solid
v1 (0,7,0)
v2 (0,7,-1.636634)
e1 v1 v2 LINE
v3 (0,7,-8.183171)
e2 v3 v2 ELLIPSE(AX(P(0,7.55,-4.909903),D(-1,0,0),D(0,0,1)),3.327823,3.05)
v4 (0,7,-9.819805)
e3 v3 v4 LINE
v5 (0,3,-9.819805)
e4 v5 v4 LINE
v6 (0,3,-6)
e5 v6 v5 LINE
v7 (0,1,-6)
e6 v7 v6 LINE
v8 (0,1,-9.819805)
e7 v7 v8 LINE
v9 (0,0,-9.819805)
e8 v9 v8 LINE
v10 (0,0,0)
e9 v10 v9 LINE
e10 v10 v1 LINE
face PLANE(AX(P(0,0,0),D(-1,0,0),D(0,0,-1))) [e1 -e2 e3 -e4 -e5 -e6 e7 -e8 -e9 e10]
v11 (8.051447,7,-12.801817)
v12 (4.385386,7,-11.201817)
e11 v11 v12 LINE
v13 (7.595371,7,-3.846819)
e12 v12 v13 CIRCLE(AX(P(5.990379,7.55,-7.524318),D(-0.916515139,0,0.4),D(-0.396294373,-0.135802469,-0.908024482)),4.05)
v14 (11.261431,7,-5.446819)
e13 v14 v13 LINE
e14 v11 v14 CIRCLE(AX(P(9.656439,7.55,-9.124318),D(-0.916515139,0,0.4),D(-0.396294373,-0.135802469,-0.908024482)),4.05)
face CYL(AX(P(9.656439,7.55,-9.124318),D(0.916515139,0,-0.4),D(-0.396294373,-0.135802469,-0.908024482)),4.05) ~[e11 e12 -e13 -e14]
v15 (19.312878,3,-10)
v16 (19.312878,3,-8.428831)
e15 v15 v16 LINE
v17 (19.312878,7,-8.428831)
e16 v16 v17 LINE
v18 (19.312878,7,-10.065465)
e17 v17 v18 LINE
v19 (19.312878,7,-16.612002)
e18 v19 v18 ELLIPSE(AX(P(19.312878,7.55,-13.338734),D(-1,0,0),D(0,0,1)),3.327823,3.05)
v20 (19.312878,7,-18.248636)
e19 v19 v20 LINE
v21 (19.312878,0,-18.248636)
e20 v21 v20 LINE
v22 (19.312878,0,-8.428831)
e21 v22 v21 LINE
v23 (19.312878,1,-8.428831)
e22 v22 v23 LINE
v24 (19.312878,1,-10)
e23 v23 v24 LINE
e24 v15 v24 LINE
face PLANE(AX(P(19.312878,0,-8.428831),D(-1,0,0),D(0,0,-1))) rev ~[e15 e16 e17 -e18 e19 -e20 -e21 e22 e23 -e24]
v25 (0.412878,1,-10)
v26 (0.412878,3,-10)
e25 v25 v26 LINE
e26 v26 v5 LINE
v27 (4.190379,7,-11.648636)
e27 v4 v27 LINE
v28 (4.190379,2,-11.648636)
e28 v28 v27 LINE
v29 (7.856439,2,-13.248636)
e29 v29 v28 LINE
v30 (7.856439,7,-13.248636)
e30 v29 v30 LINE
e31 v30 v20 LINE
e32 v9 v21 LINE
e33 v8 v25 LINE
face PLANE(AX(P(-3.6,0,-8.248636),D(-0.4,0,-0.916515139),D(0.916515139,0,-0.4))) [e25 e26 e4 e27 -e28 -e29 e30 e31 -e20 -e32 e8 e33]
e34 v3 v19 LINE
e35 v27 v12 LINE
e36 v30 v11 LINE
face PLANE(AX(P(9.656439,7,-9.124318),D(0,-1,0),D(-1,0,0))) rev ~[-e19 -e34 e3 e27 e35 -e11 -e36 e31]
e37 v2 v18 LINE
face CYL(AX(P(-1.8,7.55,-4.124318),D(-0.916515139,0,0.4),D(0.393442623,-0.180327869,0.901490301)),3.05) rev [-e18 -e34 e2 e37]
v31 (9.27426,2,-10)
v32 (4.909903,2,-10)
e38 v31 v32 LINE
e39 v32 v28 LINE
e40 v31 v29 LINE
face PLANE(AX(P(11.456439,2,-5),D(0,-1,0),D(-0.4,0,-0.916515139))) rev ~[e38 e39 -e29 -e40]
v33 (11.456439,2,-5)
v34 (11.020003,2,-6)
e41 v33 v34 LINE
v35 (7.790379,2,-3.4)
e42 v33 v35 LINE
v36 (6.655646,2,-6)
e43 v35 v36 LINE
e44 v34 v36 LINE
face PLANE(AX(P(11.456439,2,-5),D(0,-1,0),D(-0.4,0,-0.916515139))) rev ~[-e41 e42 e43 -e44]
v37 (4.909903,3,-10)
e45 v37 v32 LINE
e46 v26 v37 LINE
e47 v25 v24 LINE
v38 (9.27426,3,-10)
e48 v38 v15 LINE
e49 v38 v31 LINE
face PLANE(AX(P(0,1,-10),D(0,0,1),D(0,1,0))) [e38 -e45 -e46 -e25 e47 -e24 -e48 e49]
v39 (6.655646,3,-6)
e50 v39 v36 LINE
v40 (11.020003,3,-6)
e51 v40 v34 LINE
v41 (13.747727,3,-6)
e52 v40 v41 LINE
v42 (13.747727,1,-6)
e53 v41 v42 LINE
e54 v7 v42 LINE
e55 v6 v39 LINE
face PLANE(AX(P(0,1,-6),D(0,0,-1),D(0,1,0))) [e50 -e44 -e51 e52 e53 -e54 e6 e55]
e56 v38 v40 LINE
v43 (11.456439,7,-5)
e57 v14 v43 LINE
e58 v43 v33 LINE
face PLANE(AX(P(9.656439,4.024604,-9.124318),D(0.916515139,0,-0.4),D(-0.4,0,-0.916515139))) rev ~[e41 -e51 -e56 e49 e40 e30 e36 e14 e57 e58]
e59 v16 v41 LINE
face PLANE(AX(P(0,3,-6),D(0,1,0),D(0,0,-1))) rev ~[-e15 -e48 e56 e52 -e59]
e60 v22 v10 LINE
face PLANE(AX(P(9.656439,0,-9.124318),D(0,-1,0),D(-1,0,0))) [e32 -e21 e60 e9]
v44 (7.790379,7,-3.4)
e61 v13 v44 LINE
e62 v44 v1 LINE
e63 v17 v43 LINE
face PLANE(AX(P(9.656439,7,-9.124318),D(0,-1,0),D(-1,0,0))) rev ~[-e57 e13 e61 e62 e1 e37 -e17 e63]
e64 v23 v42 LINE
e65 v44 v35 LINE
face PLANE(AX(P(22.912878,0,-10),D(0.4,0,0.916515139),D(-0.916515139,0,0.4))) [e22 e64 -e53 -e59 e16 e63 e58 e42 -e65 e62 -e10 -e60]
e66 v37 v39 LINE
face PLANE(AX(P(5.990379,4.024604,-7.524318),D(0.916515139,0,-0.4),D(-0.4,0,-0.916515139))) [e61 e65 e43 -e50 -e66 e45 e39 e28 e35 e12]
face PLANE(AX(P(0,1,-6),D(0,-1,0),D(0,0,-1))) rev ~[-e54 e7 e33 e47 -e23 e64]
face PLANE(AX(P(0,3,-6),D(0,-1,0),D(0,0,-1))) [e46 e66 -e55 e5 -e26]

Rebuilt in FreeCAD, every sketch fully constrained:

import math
import FreeCAD as App
import Part
import Sketcher
from FreeCAD import Vector
Q = App.Units.Quantity

doc = App.newDocument("Part")
body = doc.addObject("PartDesign::Body", "Body")

sketch1 = body.newObject("Sketcher::SketchObject", "Sketch")
sketch1.AttachmentSupport = (doc.getObject("XZ_Plane"), [""])
sketch1.MapMode = "FlatFace"
sketch1.addGeometry(Part.LineSegment(Vector(-3.6, -8.248636, 0), Vector(0, 0, 0)), False)
sketch1.addGeometry(Part.LineSegment(Vector(0, 0, 0), Vector(22.912878, -10, 0)), False)
sketch1.addGeometry(Part.LineSegment(Vector(22.912878, -10, 0), Vector(19.312878, -18.248636, 0)), False)
sketch1.addGeometry(Part.LineSegment(Vector(19.312878, -18.248636, 0), Vector(-3.6, -8.248636, 0)), False)
sketch1.addConstraint(Sketcher.Constraint("Coincident", 0, 2, 1, 1))
sketch1.addConstraint(Sketcher.Constraint("Coincident", 1, 2, 2, 1))
sketch1.addConstraint(Sketcher.Constraint("Coincident", 2, 2, 3, 1))
sketch1.addConstraint(Sketcher.Constraint("Coincident", 3, 2, 0, 1))
sketch1.addConstraint(Sketcher.Constraint("Coincident", 0, 2, -1, 1))
sketch1.addConstraint(Sketcher.Constraint("Perpendicular", 0, 1))
sketch1.addConstraint(Sketcher.Constraint("Perpendicular", 1, 2))
sketch1.addConstraint(Sketcher.Constraint("Perpendicular", 2, 3))
sketch1.addConstraint(Sketcher.Constraint("Distance", 0, Q("9 mm")))
sketch1.addConstraint(Sketcher.Constraint("Distance", 1, Q("25 mm")))
sketch1.addConstraint(Sketcher.Constraint("DistanceY", 1, 2, -1, 1, Q("10 mm")))
pad1 = body.newObject("PartDesign::Pad", "Pad")
pad1.Profile = sketch1
pad1.Length = 7
pad1.Reversed = True

sketch2 = body.newObject("Sketcher::SketchObject", "Sketch001")
sketch2.Placement = App.Placement(Vector(0, 0, 0), App.Rotation(Vector(0.4, 0, 0.916515139), Vector(0, 1, 0), Vector(-0.916515139, 0, 0.4), "ZXY"))
sketch2.addGeometry(Part.LineSegment(Vector(-1.5, 7, 0), Vector(-7.5, 7, 0)), False)
sketch2.addGeometry(Part.ArcOfCircle(Part.Circle(Vector(-4.5, 7.55, 0), Vector(0, 0, 1), 3.05), math.radians(-169.611142), math.radians(-10.388858)), False)
sketch2.addConstraint(Sketcher.Constraint("Coincident", 0, 1, 1, 2))
sketch2.addConstraint(Sketcher.Constraint("Coincident", 1, 1, 0, 2))
sketch2.addConstraint(Sketcher.Constraint("Horizontal", 0))
sketch2.addConstraint(Sketcher.Constraint("DistanceX", 0, 2, 0, 1, Q("6 mm")))
sketch2.addConstraint(Sketcher.Constraint("Radius", 1, Q("3.05 mm")))
sketch2.addConstraint(Sketcher.Constraint("DistanceY", -1, 1, 0, 1, Q("7 mm")))
sketch2.addConstraint(Sketcher.Constraint("DistanceX", 1, 3, -1, 1, Q("4.5 mm")))
pocket1 = body.newObject("PartDesign::Pocket", "Pocket")
pocket1.Profile = sketch2
pocket1.Length = 25

sketch3 = body.newObject("Sketcher::SketchObject", "Sketch002")
sketch3.Placement = App.Placement(Vector(11.456439, 0, -5), App.Rotation(Vector(-0.4, 0, -0.916515139), Vector(0, 1, 0), Vector(0.916515139, 0, -0.4), "ZXY"))
sketch3.addGeometry(Part.LineSegment(Vector(0.487519, 7, 0), Vector(0, 7, 0)), False)
sketch3.addGeometry(Part.LineSegment(Vector(0, 7, 0), Vector(0, 2, 0)), False)
sketch3.addGeometry(Part.LineSegment(Vector(0, 2, 0), Vector(9, 2, 0)), False)
sketch3.addGeometry(Part.LineSegment(Vector(9, 2, 0), Vector(9, 7, 0)), False)
sketch3.addGeometry(Part.LineSegment(Vector(9, 7, 0), Vector(8.512481, 7, 0)), False)
sketch3.addGeometry(Part.ArcOfCircle(Part.Circle(Vector(4.5, 7.55, 0), Vector(0, 0, 1), 4.05), math.radians(-172.194975), math.radians(-7.805025)), False)
sketch3.addConstraint(Sketcher.Constraint("Coincident", 0, 2, 1, 1))
sketch3.addConstraint(Sketcher.Constraint("Coincident", 1, 2, 2, 1))
sketch3.addConstraint(Sketcher.Constraint("Coincident", 2, 2, 3, 1))
sketch3.addConstraint(Sketcher.Constraint("Coincident", 3, 2, 4, 1))
sketch3.addConstraint(Sketcher.Constraint("Coincident", 4, 2, 5, 2))
sketch3.addConstraint(Sketcher.Constraint("Coincident", 5, 1, 0, 1))
sketch3.addConstraint(Sketcher.Constraint("Horizontal", 0))
sketch3.addConstraint(Sketcher.Constraint("Vertical", 1))
sketch3.addConstraint(Sketcher.Constraint("Horizontal", 2))
sketch3.addConstraint(Sketcher.Constraint("Vertical", 3))
sketch3.addConstraint(Sketcher.Constraint("Horizontal", 4))
sketch3.addConstraint(Sketcher.Constraint("PointOnObject", 0, 2, -2))
sketch3.addConstraint(Sketcher.Constraint("Horizontal", 0, 2, 3, 2))
sketch3.addConstraint(Sketcher.Constraint("Equal", 0, 4))
sketch3.addConstraint(Sketcher.Constraint("DistanceX", 2, 1, 2, 2, Q("9 mm")))
sketch3.addConstraint(Sketcher.Constraint("DistanceY", 1, 2, 1, 1, Q("5 mm")))
sketch3.addConstraint(Sketcher.Constraint("Radius", 5, Q("4.05 mm")))
sketch3.addConstraint(Sketcher.Constraint("DistanceY", -1, 1, 0, 2, Q("7 mm")))
sketch3.addConstraint(Sketcher.Constraint("DistanceY", -1, 1, 5, 3, Q("7.55 mm")))
pocket2 = body.newObject("PartDesign::Pocket", "Pocket001")
pocket2.Profile = sketch3
pocket2.Length = 4

sketch4 = body.newObject("Sketcher::SketchObject", "Sketch003")
sketch4.AttachmentSupport = (doc.getObject("YZ_Plane"), [""])
sketch4.MapMode = "FlatFace"
sketch4.addGeometry(Part.LineSegment(Vector(3, -6, 0), Vector(1, -6, 0)), False)
sketch4.addGeometry(Part.LineSegment(Vector(1, -6, 0), Vector(1, -10, 0)), False)
sketch4.addGeometry(Part.LineSegment(Vector(1, -10, 0), Vector(3, -10, 0)), False)
sketch4.addGeometry(Part.LineSegment(Vector(3, -10, 0), Vector(3, -6, 0)), False)
sketch4.addConstraint(Sketcher.Constraint("Coincident", 0, 2, 1, 1))
sketch4.addConstraint(Sketcher.Constraint("Coincident", 1, 2, 2, 1))
sketch4.addConstraint(Sketcher.Constraint("Coincident", 2, 2, 3, 1))
sketch4.addConstraint(Sketcher.Constraint("Coincident", 3, 2, 0, 1))
sketch4.addConstraint(Sketcher.Constraint("Horizontal", 0))
sketch4.addConstraint(Sketcher.Constraint("Vertical", 1))
sketch4.addConstraint(Sketcher.Constraint("Horizontal", 2))
sketch4.addConstraint(Sketcher.Constraint("Vertical", 3))
sketch4.addConstraint(Sketcher.Constraint("DistanceX", 0, 2, 0, 1, Q("2 mm")))
sketch4.addConstraint(Sketcher.Constraint("DistanceY", 1, 2, 1, 1, Q("4 mm")))
sketch4.addConstraint(Sketcher.Constraint("DistanceX", -1, 1, 0, 2, Q("1 mm")))
sketch4.addConstraint(Sketcher.Constraint("DistanceY", 0, 2, -1, 1, Q("6 mm")))
pocket3 = body.newObject("PartDesign::Pocket", "Pocket002")
pocket3.Profile = sketch4
pocket3.Type = "ThroughAll"
pocket3.Midplane = True

sketch5 = body.newObject("Sketcher::SketchObject", "Sketch004")
sketch5.AttachmentSupport = (doc.getObject("XZ_Plane"), [""])
sketch5.MapMode = "FlatFace"
sketch5.addGeometry(Part.LineSegment(Vector(19.312878, -18.248636, 0), Vector(19.312878, -8.428831, 0)), False)
sketch5.addGeometry(Part.LineSegment(Vector(19.312878, -8.428831, 0), Vector(22.912878, -8.428831, 0)), False)
sketch5.addGeometry(Part.LineSegment(Vector(22.912878, -8.428831, 0), Vector(22.912878, -18.248636, 0)), False)
sketch5.addGeometry(Part.LineSegment(Vector(22.912878, -18.248636, 0), Vector(19.312878, -18.248636, 0)), False)
sketch5.addConstraint(Sketcher.Constraint("Coincident", 0, 2, 1, 1))
sketch5.addConstraint(Sketcher.Constraint("Coincident", 1, 2, 2, 1))
sketch5.addConstraint(Sketcher.Constraint("Coincident", 2, 2, 3, 1))
sketch5.addConstraint(Sketcher.Constraint("Coincident", 3, 2, 0, 1))
sketch5.addConstraint(Sketcher.Constraint("Vertical", 0))
sketch5.addConstraint(Sketcher.Constraint("Horizontal", 1))
sketch5.addConstraint(Sketcher.Constraint("Vertical", 2))
sketch5.addConstraint(Sketcher.Constraint("Horizontal", 3))
sketch5.addConstraint(Sketcher.Constraint("DistanceX", 1, 1, 1, 2, Q("3.6 mm")))
sketch5.addConstraint(Sketcher.Constraint("DistanceY", 0, 1, 0, 2, Q("9.819805 mm")))
sketch5.addConstraint(Sketcher.Constraint("DistanceX", -1, 1, 0, 2, Q("19.312878 mm")))
sketch5.addConstraint(Sketcher.Constraint("DistanceY", 0, 2, -1, 1, Q("8.428831 mm")))
pocket4 = body.newObject("PartDesign::Pocket", "Pocket003")
pocket4.Profile = sketch5
pocket4.Type = "ThroughAll"

sketch6 = body.newObject("Sketcher::SketchObject", "Sketch005")
sketch6.AttachmentSupport = (doc.getObject("XZ_Plane"), [""])
sketch6.MapMode = "FlatFace"
sketch6.addGeometry(Part.LineSegment(Vector(-3.6, -9.819805, 0), Vector(-3.6, 0, 0)), False)
sketch6.addGeometry(Part.LineSegment(Vector(-3.6, 0, 0), Vector(0, 0, 0)), False)
sketch6.addGeometry(Part.LineSegment(Vector(0, 0, 0), Vector(0, -9.819805, 0)), False)
sketch6.addGeometry(Part.LineSegment(Vector(0, -9.819805, 0), Vector(-3.6, -9.819805, 0)), False)
sketch6.addConstraint(Sketcher.Constraint("Coincident", 0, 2, 1, 1))
sketch6.addConstraint(Sketcher.Constraint("Coincident", 1, 2, 2, 1))
sketch6.addConstraint(Sketcher.Constraint("Coincident", 2, 2, 3, 1))
sketch6.addConstraint(Sketcher.Constraint("Coincident", 3, 2, 0, 1))
sketch6.addConstraint(Sketcher.Constraint("Vertical", 0))
sketch6.addConstraint(Sketcher.Constraint("Horizontal", 1))
sketch6.addConstraint(Sketcher.Constraint("Vertical", 2))
sketch6.addConstraint(Sketcher.Constraint("Horizontal", 3))
sketch6.addConstraint(Sketcher.Constraint("Coincident", 1, 2, -1, 1))
sketch6.addConstraint(Sketcher.Constraint("DistanceX", 1, 1, 1, 2, Q("3.6 mm")))
sketch6.addConstraint(Sketcher.Constraint("DistanceY", 0, 1, 0, 2, Q("9.819805 mm")))
pocket5 = body.newObject("PartDesign::Pocket", "Pocket004")
pocket5.Profile = sketch6
pocket5.Type = "ThroughAll"

doc.recompute()
